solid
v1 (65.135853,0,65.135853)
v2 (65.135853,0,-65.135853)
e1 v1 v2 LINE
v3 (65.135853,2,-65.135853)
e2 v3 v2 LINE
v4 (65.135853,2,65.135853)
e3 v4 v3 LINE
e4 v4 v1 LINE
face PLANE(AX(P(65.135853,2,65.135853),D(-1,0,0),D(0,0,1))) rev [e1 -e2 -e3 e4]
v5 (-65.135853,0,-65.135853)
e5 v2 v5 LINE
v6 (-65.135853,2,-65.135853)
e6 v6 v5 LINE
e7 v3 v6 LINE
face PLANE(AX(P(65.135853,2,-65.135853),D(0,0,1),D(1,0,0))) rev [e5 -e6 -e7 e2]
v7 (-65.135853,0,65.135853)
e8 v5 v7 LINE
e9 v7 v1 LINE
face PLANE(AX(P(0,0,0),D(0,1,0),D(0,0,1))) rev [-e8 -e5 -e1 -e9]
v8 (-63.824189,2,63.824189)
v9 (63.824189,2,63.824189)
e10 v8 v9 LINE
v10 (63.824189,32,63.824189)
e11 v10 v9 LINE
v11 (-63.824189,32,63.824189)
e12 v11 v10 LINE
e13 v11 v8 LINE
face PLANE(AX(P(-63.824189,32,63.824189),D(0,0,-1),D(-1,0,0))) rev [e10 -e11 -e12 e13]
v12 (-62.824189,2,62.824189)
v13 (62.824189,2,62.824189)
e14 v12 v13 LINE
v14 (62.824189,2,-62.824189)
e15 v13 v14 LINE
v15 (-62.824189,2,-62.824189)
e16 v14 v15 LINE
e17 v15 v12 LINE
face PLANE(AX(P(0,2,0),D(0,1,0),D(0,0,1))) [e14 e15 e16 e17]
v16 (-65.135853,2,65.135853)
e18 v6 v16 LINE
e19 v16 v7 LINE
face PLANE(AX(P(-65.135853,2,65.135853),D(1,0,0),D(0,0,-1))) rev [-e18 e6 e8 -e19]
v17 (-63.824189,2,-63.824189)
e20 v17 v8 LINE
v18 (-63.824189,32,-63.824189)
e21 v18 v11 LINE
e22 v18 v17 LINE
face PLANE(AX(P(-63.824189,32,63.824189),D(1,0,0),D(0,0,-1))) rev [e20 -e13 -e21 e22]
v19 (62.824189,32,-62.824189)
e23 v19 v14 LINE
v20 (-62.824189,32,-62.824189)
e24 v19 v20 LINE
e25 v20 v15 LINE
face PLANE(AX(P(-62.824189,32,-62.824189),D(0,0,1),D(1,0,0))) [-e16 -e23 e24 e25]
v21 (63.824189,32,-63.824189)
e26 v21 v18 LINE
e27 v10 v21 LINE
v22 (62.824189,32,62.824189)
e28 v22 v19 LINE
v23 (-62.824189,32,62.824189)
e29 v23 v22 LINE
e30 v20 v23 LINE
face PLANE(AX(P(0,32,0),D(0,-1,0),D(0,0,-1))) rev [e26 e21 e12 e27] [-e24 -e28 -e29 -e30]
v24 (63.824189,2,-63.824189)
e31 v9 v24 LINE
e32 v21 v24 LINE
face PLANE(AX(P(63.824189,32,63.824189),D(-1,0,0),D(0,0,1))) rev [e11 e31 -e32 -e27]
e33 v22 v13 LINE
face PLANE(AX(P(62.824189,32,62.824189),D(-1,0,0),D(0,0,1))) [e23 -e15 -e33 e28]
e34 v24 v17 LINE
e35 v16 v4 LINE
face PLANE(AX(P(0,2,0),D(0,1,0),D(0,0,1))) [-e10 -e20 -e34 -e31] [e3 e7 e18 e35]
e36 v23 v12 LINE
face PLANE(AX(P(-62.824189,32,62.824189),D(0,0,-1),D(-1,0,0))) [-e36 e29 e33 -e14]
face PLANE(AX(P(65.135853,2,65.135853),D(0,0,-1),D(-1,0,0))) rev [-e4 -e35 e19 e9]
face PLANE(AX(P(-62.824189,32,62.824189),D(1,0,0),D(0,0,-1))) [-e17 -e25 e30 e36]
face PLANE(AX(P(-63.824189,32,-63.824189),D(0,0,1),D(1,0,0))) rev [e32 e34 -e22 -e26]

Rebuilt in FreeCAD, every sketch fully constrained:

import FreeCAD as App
import Part
import Sketcher


def add_polygon(sketch, points):
    """Adds a closed chain of lines whose ends are joined by coincident constraints."""
    first, n = sketch.GeometryCount, len(points)
    for a, b in zip(points, points[1:] + points[:1]):
        sketch.addGeometry(Part.LineSegment(App.Vector(*a, 0), App.Vector(*b, 0)), False)
    for i in range(n):
        sketch.addConstraint(Sketcher.Constraint("Coincident", first + i, 2, first + (i + 1) % n, 1))

doc = App.newDocument("Part")
body = doc.addObject("PartDesign::Body", "Body")

sketch1 = body.newObject("Sketcher::SketchObject", "Sketch")
sketch1.AttachmentSupport = (doc.getObject("XZ_Plane"), [""])
sketch1.MapMode = "FlatFace"
add_polygon(sketch1, [(-65, -65), (-65, 65), (65, 65), (65, -65)])
sketch1.addConstraint([
    Sketcher.Constraint("Vertical", 0),
    Sketcher.Constraint("Horizontal", 1),
    Sketcher.Constraint("Vertical", 2),
    Sketcher.Constraint("Horizontal", 3),
    Sketcher.Constraint("Symmetric", 0, 2, 2, 2, -1, 1),
    Sketcher.Constraint("Equal", 3, 0),
    Sketcher.Constraint("DistanceX", 1, 1, 1, 2, 130.271706),
])
pad1 = body.newObject("PartDesign::Pad", "Pad")
pad1.Profile = sketch1
pad1.Length = 2
pad1.Reversed = True

sketch2 = body.newObject("Sketcher::SketchObject", "Sketch001")
sketch2.AttachmentSupport = (doc.getObject("XZ_Plane"), [""])
sketch2.MapMode = "FlatFace"
sketch2.AttachmentOffset = App.Placement(App.Vector(0, 0, -2), App.Rotation())
add_polygon(sketch2, [(-64, -64), (-64, 64), (64, 64), (64, -64)])
add_polygon(sketch2, [(63, 63), (-63, 63), (-63, -63), (63, -63)])
sketch2.addConstraint([
    Sketcher.Constraint("Vertical", 0),
    Sketcher.Constraint("Horizontal", 1),
    Sketcher.Constraint("Vertical", 2),
    Sketcher.Constraint("Horizontal", 3),
    Sketcher.Constraint("Horizontal", 4),
    Sketcher.Constraint("Vertical", 5),
    Sketcher.Constraint("Horizontal", 6),
    Sketcher.Constraint("Vertical", 7),
    Sketcher.Constraint("Symmetric", 0, 2, 2, 2, -1, 1),
    Sketcher.Constraint("Symmetric", 4, 2, 6, 2, -1, 1),
    Sketcher.Constraint("Equal", 3, 0),
    Sketcher.Constraint("Equal", 6, 5),
    Sketcher.Constraint("DistanceX", 0, 2, 4, 2, 1.0),
    Sketcher.Constraint("DistanceX", 1, 1, 1, 2, 127.648377),
])
pad2 = body.newObject("PartDesign::Pad", "Pad001")
pad2.Profile = sketch2
pad2.Length = 30
pad2.Reversed = True

doc.recompute()
